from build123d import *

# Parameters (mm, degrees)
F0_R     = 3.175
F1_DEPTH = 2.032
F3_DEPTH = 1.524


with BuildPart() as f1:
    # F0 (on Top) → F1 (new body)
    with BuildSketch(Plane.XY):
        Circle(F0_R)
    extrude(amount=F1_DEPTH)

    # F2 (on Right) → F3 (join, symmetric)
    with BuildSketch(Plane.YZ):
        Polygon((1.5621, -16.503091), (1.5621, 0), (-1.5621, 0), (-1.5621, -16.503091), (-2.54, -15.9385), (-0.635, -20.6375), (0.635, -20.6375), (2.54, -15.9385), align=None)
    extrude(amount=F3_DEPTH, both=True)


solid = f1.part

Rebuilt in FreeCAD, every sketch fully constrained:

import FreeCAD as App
import Part
import Sketcher
from FreeCAD import Vector
Q = App.Units.Quantity


def add_polygon(sketch, points):
    """Adds a closed chain of lines whose ends are joined by coincident constraints."""
    first, n = sketch.GeometryCount, len(points)
    for a, b in zip(points, points[1:] + points[:1]):
        sketch.addGeometry(Part.LineSegment(App.Vector(*a, 0), App.Vector(*b, 0)), False)
    for i in range(n):
        sketch.addConstraint(Sketcher.Constraint("Coincident", first + i, 2, first + (i + 1) % n, 1))

doc = App.newDocument("Part")
body = doc.addObject("PartDesign::Body", "Body")

# Sketch on XY plane
sketch1 = body.newObject("Sketcher::SketchObject", "Sketch")
sketch1.AttachmentSupport = (doc.getObject("XY_Plane"), [""])
sketch1.MapMode = "FlatFace"
sketch1.addGeometry(Part.Circle(Vector(0, 0, 0), Vector(0, 0, 1), 3.2), False)
sketch1.addConstraint([
    Sketcher.Constraint("Coincident", 0, 3, -1, 1),
    Sketcher.Constraint("Diameter", 0, Q("0.25 in")),
])
pad1 = body.newObject("PartDesign::Pad", "Pad")
pad1.Profile = sketch1
pad1.Length = Q("0.08 in")

# Sketch on YZ plane
sketch2 = body.newObject("Sketcher::SketchObject", "Sketch001")
sketch2.AttachmentSupport = (doc.getObject("YZ_Plane"), [""])
sketch2.MapMode = "FlatFace"
add_polygon(sketch2, [(1.6, -16.5), (1.6, 0), (-1.6, 0), (-1.6, -16.5), (-2.5, -15.9), (-0.6, -20.6), (0.6, -20.6), (2.5, -15.9)])  # lines 0-7
sketch2.addConstraint([
    Sketcher.Constraint("Vertical", 0),
    Sketcher.Constraint("Horizontal", 1),
    Sketcher.Constraint("Vertical", 2),
    Sketcher.Constraint("Horizontal", 5),
    Sketcher.Constraint("Symmetric", 0, 2, 1, 2, -1, 1),
    Sketcher.Constraint("Symmetric", 3, 2, 6, 2, -2),
    Sketcher.Constraint("Horizontal", 2, 2, 7, 2),
    Sketcher.Constraint("Equal", 4, 6),
    Sketcher.Constraint("Angle", 3, Q("149.999992 deg")),
    Sketcher.Constraint("DistanceX", 5, 1, 5, 2, Q("0.05 in")),
    Sketcher.Constraint("DistanceX", 3, 2, -1, 1, Q("0.1 in")),
    Sketcher.Constraint("DistanceX", 1, 2, 1, 1, Q("0.123 in")),
    Sketcher.Constraint("DistanceY", 4, 2, -1, 1, Q("0.8125 in")),
    Sketcher.Constraint("DistanceY", 4, 2, 3, 2, Q("0.185 in")),
])
pad2 = body.newObject("PartDesign::Pad", "Pad001")
pad2.Profile = sketch2
pad2.Length = Q("0.12 in")
pad2.Midplane = True

doc.recompute()
